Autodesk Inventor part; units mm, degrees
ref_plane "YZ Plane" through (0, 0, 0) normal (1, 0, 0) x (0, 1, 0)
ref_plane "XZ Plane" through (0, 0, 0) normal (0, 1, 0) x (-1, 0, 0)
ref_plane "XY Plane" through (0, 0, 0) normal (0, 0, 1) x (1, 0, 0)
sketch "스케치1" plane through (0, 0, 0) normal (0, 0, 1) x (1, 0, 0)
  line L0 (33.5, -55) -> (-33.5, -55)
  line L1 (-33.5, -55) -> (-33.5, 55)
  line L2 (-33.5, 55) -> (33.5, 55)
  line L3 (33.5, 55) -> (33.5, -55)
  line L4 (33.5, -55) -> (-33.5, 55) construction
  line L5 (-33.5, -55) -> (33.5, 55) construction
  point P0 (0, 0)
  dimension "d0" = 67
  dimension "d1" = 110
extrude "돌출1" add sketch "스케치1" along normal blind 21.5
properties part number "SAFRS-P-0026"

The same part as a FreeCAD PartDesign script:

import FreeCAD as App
import Part
import Sketcher

V = App.Vector
Q = App.Units.Quantity


def add_polygon(sketch, points):
    """Adds a closed chain of lines whose ends are joined by coincident constraints."""
    first, n = sketch.GeometryCount, len(points)
    for a, b in zip(points, points[1:] + points[:1]):
        sketch.addGeometry(Part.LineSegment(App.Vector(*a, 0), App.Vector(*b, 0)), False)
    for i in range(n):
        sketch.addConstraint(Sketcher.Constraint("Coincident", first + i, 2, first + (i + 1) % n, 1))

doc = App.newDocument("Part")
body = doc.addObject("PartDesign::Body", "Body")

# Sketch on XY plane
sketch1 = body.newObject("Sketcher::SketchObject", "Sketch")
sketch1.AttachmentSupport = (doc.getObject("XY_Plane"), [""])
sketch1.MapMode = "FlatFace"
add_polygon(sketch1, [(-34, -55), (34, -55), (34, 55), (-34, 55)])  # lines 0-3
sketch1.addConstraint([
    Sketcher.Constraint("Horizontal", 0),
    Sketcher.Constraint("Vertical", 1),
    Sketcher.Constraint("Horizontal", 2),
    Sketcher.Constraint("Vertical", 3),
    Sketcher.Constraint("Symmetric", 0, 2, 2, 2, -1, 1),
    Sketcher.Constraint("DistanceX", 0, 1, 0, 2, Q("67 mm")),
    Sketcher.Constraint("DistanceY", 1, 1, 1, 2, Q("110 mm")),
])
pad1 = body.newObject("PartDesign::Pad", "Pad")
pad1.Profile = sketch1
pad1.Length = 21.5

doc.recompute()
